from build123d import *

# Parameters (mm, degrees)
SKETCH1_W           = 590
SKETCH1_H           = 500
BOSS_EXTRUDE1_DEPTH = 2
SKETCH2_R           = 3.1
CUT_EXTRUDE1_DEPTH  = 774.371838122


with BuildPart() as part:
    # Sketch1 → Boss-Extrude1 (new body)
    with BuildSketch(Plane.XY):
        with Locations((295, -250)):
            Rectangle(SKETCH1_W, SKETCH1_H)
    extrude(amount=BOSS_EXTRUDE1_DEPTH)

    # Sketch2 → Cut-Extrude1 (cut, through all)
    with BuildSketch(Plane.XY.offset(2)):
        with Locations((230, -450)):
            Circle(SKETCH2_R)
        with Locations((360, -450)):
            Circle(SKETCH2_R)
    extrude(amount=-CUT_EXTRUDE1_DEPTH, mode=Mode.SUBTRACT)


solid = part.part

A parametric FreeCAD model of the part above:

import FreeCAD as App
import Part
import Sketcher

V = App.Vector

doc = App.newDocument("Part")
body = doc.addObject("PartDesign::Body", "Body")

sketch1 = body.newObject("Sketcher::SketchObject", "Sketch")
sketch1.AttachmentSupport = (doc.getObject("XY_Plane"), [""])
sketch1.MapMode = "FlatFace"
sketch1.addGeometry([
    Part.LineSegment(V(0, 0, 0), V(0, -500, 0)),
    Part.LineSegment(V(0, -500, 0), V(590, -500, 0)),
    Part.LineSegment(V(590, -500, 0), V(590, 0, 0)),
    Part.LineSegment(V(590, 0, 0), V(0, 0, 0)),
], False)
sketch1.addConstraint([
    Sketcher.Constraint("Coincident", 0, 2, 1, 1),
    Sketcher.Constraint("Coincident", 1, 2, 2, 1),
    Sketcher.Constraint("Coincident", 2, 2, 3, 1),
    Sketcher.Constraint("Coincident", 3, 2, 0, 1),
    Sketcher.Constraint("Vertical", 0),
    Sketcher.Constraint("Horizontal", 1),
    Sketcher.Constraint("Vertical", 2),
    Sketcher.Constraint("Horizontal", 3),
    Sketcher.Constraint("Coincident", 3, 2, -1, 1),
    Sketcher.Constraint("DistanceX", 1, 1, 1, 2, 590.0),
    Sketcher.Constraint("DistanceY", 0, 2, 0, 1, 500.0),
])
pad1 = body.newObject("PartDesign::Pad", "Pad")
pad1.Profile = sketch1
pad1.Length = 2

sketch2 = body.newObject("Sketcher::SketchObject", "Sketch001")
sketch2.AttachmentSupport = (doc.getObject("XY_Plane"), [""])
sketch2.MapMode = "FlatFace"
sketch2.AttachmentOffset = App.Placement(V(0, 0, 2), App.Rotation())
sketch2.addGeometry([
    Part.Circle(V(230, -450, 0), V(0, 0, 1), 3.1),
    Part.Circle(V(360, -450, 0), V(0, 0, 1), 3.1),
], False)
sketch2.addConstraint([
    Sketcher.Constraint("Equal", 0, 1),
    Sketcher.Constraint("Horizontal", 0, 3, 1, 3),
    Sketcher.Constraint("Diameter", 0, 6.2),
    Sketcher.Constraint("DistanceX", -1, 1, 0, 3, 230.0),
    Sketcher.Constraint("DistanceY", 0, 3, -1, 1, 450.0),
    Sketcher.Constraint("DistanceX", -1, 1, 1, 3, 360.0),
])
pocket1 = body.newObject("PartDesign::Pocket", "Pocket")
pocket1.Profile = sketch2
pocket1.Type = "ThroughAll"

doc.recompute()
